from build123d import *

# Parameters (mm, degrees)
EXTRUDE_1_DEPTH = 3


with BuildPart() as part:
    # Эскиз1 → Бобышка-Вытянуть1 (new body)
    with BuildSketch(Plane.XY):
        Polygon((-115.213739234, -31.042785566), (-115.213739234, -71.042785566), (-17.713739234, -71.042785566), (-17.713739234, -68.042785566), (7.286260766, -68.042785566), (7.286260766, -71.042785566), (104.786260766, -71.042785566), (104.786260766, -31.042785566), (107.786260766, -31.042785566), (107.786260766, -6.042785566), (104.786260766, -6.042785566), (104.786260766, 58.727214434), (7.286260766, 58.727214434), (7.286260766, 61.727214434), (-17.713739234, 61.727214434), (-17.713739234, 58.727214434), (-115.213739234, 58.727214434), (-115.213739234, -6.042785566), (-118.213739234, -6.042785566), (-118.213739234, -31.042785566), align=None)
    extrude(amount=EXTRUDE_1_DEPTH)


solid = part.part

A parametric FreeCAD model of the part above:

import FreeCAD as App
import Part
import Sketcher

V = App.Vector
Q = App.Units.Quantity

doc = App.newDocument("Part")
params = doc.addObject("Spreadsheet::Sheet", "Params")
for row, (alias, value) in enumerate([
    ("sketch1_width", "25 mm"),
    ("sketch1_width2", "3 mm"),
    ("sketch1_height", "40 mm"),
    ("sketch1_width3", "97.5 mm"),
    ("sketch1_height2", "64.77 mm"),
    ("pad1_length", "3 mm"),
], start=1):
    params.set(f"A{row}", alias)
    params.set(f"B{row}", "=" + value)
    params.setAlias(f"B{row}", alias)

body = doc.addObject("PartDesign::Body", "Body")

sketch1 = body.newObject("Sketcher::SketchObject", "Sketch")
sketch1.AttachmentSupport = (doc.getObject("XY_Plane"), [""])
sketch1.MapMode = "FlatFace"
sketch1.addGeometry([
    Part.LineSegment(V(-115.213739, -31.042786, 0), V(-115.213739, -71.042786, 0)),
    Part.LineSegment(V(-115.213739, -71.042786, 0), V(-17.713739, -71.042786, 0)),
    Part.LineSegment(V(-17.713739, -71.042786, 0), V(-17.713739, -68.042786, 0)),
    Part.LineSegment(V(-17.713739, -68.042786, 0), V(7.286261, -68.042786, 0)),
    Part.LineSegment(V(7.286261, -68.042786, 0), V(7.286261, -71.042786, 0)),
    Part.LineSegment(V(7.286261, -71.042786, 0), V(104.786261, -71.042786, 0)),
    Part.LineSegment(V(104.786261, -71.042786, 0), V(104.786261, -31.042786, 0)),
    Part.LineSegment(V(104.786261, -31.042786, 0), V(107.786261, -31.042786, 0)),
    Part.LineSegment(V(107.786261, -31.042786, 0), V(107.786261, -6.042786, 0)),
    Part.LineSegment(V(107.786261, -6.042786, 0), V(104.786261, -6.042786, 0)),
    Part.LineSegment(V(104.786261, -6.042786, 0), V(104.786261, 58.727214, 0)),
    Part.LineSegment(V(104.786261, 58.727214, 0), V(7.286261, 58.727214, 0)),
    Part.LineSegment(V(7.286261, 58.727214, 0), V(7.286261, 61.727214, 0)),
    Part.LineSegment(V(7.286261, 61.727214, 0), V(-17.713739, 61.727214, 0)),
    Part.LineSegment(V(-17.713739, 61.727214, 0), V(-17.713739, 58.727214, 0)),
    Part.LineSegment(V(-17.713739, 58.727214, 0), V(-115.213739, 58.727214, 0)),
    Part.LineSegment(V(-115.213739, 58.727214, 0), V(-115.213739, -6.042786, 0)),
    Part.LineSegment(V(-115.213739, -6.042786, 0), V(-118.213739, -6.042786, 0)),
    Part.LineSegment(V(-118.213739, -6.042786, 0), V(-118.213739, -31.042786, 0)),
    Part.LineSegment(V(-118.213739, -31.042786, 0), V(-115.213739, -31.042786, 0)),
], False)
sketch1.addConstraint([
    Sketcher.Constraint("Coincident", 0, 2, 1, 1),
    Sketcher.Constraint("Coincident", 1, 2, 2, 1),
    Sketcher.Constraint("Coincident", 2, 2, 3, 1),
    Sketcher.Constraint("Coincident", 3, 2, 4, 1),
    Sketcher.Constraint("Coincident", 4, 2, 5, 1),
    Sketcher.Constraint("Coincident", 5, 2, 6, 1),
    Sketcher.Constraint("Coincident", 6, 2, 7, 1),
    Sketcher.Constraint("Coincident", 7, 2, 8, 1),
    Sketcher.Constraint("Coincident", 8, 2, 9, 1),
    Sketcher.Constraint("Coincident", 9, 2, 10, 1),
    Sketcher.Constraint("Coincident", 10, 2, 11, 1),
    Sketcher.Constraint("Coincident", 11, 2, 12, 1),
    Sketcher.Constraint("Coincident", 12, 2, 13, 1),
    Sketcher.Constraint("Coincident", 13, 2, 14, 1),
    Sketcher.Constraint("Coincident", 14, 2, 15, 1),
    Sketcher.Constraint("Coincident", 15, 2, 16, 1),
    Sketcher.Constraint("Coincident", 16, 2, 17, 1),
    Sketcher.Constraint("Coincident", 17, 2, 18, 1),
    Sketcher.Constraint("Coincident", 18, 2, 19, 1),
    Sketcher.Constraint("Coincident", 19, 2, 0, 1),
    Sketcher.Constraint("Vertical", 0),
    Sketcher.Constraint("Horizontal", 1),
    Sketcher.Constraint("Vertical", 2),
    Sketcher.Constraint("Horizontal", 3),
    Sketcher.Constraint("Vertical", 4),
    Sketcher.Constraint("Horizontal", 5),
    Sketcher.Constraint("Vertical", 6),
    Sketcher.Constraint("Horizontal", 7),
    Sketcher.Constraint("Vertical", 8),
    Sketcher.Constraint("Horizontal", 9),
    Sketcher.Constraint("Vertical", 10),
    Sketcher.Constraint("Horizontal", 11),
    Sketcher.Constraint("Vertical", 12),
    Sketcher.Constraint("Horizontal", 13),
    Sketcher.Constraint("Vertical", 14),
    Sketcher.Constraint("Horizontal", 15),
    Sketcher.Constraint("Vertical", 16),
    Sketcher.Constraint("Horizontal", 17),
    Sketcher.Constraint("Vertical", 18),
    Sketcher.Constraint("Horizontal", 19),
    Sketcher.Constraint("Horizontal", 1, 2, 4, 2),
    Sketcher.Constraint("Horizontal", 11, 2, 14, 2),
    Sketcher.Constraint("Horizontal", 9, 2, 16, 2),
    Sketcher.Constraint("Horizontal", 7, 2, 18, 2),
    Sketcher.Constraint("Vertical", 6, 2, 9, 2),
    Sketcher.Constraint("Vertical", 4, 2, 11, 2),
    Sketcher.Constraint("Vertical", 2, 2, 13, 2),
    Sketcher.Constraint("Vertical", 0, 2, 15, 2),
    Sketcher.Constraint("Equal", 1, 5),
    Sketcher.Constraint("Equal", 9, 17),
    Sketcher.Constraint("Equal", 19, 2),
    Sketcher.Constraint("Equal", 13, 8),
    Sketcher.Constraint("Equal", 4, 12),
    Sketcher.Constraint("DistanceX", 3, 1, 3, 2, Q("25 mm")),
    Sketcher.Constraint("DistanceX", 7, 1, 7, 2, Q("3 mm")),
    Sketcher.Constraint("DistanceY", 0, 2, 0, 1, Q("40 mm")),
    Sketcher.Constraint("DistanceX", 1, 1, 1, 2, Q("97.5 mm")),
    Sketcher.Constraint("DistanceY", 10, 1, 10, 2, Q("64.77 mm")),
    Sketcher.Constraint("DistanceX", 0, 2, -1, 1, Q("115.213739 mm")),
    Sketcher.Constraint("DistanceY", 0, 2, -1, 1, Q("71.042786 mm")),
])
sketch1.setExpression("Constraints[53]", "Params.sketch1_width")
sketch1.setExpression("Constraints[54]", "Params.sketch1_width2")
sketch1.setExpression("Constraints[55]", "Params.sketch1_height")
sketch1.setExpression("Constraints[56]", "Params.sketch1_width3")
sketch1.setExpression("Constraints[57]", "Params.sketch1_height2")
pad1 = body.newObject("PartDesign::Pad", "Pad")
pad1.Profile = sketch1
pad1.setExpression("Length", "Params.pad1_length")

doc.recompute()
